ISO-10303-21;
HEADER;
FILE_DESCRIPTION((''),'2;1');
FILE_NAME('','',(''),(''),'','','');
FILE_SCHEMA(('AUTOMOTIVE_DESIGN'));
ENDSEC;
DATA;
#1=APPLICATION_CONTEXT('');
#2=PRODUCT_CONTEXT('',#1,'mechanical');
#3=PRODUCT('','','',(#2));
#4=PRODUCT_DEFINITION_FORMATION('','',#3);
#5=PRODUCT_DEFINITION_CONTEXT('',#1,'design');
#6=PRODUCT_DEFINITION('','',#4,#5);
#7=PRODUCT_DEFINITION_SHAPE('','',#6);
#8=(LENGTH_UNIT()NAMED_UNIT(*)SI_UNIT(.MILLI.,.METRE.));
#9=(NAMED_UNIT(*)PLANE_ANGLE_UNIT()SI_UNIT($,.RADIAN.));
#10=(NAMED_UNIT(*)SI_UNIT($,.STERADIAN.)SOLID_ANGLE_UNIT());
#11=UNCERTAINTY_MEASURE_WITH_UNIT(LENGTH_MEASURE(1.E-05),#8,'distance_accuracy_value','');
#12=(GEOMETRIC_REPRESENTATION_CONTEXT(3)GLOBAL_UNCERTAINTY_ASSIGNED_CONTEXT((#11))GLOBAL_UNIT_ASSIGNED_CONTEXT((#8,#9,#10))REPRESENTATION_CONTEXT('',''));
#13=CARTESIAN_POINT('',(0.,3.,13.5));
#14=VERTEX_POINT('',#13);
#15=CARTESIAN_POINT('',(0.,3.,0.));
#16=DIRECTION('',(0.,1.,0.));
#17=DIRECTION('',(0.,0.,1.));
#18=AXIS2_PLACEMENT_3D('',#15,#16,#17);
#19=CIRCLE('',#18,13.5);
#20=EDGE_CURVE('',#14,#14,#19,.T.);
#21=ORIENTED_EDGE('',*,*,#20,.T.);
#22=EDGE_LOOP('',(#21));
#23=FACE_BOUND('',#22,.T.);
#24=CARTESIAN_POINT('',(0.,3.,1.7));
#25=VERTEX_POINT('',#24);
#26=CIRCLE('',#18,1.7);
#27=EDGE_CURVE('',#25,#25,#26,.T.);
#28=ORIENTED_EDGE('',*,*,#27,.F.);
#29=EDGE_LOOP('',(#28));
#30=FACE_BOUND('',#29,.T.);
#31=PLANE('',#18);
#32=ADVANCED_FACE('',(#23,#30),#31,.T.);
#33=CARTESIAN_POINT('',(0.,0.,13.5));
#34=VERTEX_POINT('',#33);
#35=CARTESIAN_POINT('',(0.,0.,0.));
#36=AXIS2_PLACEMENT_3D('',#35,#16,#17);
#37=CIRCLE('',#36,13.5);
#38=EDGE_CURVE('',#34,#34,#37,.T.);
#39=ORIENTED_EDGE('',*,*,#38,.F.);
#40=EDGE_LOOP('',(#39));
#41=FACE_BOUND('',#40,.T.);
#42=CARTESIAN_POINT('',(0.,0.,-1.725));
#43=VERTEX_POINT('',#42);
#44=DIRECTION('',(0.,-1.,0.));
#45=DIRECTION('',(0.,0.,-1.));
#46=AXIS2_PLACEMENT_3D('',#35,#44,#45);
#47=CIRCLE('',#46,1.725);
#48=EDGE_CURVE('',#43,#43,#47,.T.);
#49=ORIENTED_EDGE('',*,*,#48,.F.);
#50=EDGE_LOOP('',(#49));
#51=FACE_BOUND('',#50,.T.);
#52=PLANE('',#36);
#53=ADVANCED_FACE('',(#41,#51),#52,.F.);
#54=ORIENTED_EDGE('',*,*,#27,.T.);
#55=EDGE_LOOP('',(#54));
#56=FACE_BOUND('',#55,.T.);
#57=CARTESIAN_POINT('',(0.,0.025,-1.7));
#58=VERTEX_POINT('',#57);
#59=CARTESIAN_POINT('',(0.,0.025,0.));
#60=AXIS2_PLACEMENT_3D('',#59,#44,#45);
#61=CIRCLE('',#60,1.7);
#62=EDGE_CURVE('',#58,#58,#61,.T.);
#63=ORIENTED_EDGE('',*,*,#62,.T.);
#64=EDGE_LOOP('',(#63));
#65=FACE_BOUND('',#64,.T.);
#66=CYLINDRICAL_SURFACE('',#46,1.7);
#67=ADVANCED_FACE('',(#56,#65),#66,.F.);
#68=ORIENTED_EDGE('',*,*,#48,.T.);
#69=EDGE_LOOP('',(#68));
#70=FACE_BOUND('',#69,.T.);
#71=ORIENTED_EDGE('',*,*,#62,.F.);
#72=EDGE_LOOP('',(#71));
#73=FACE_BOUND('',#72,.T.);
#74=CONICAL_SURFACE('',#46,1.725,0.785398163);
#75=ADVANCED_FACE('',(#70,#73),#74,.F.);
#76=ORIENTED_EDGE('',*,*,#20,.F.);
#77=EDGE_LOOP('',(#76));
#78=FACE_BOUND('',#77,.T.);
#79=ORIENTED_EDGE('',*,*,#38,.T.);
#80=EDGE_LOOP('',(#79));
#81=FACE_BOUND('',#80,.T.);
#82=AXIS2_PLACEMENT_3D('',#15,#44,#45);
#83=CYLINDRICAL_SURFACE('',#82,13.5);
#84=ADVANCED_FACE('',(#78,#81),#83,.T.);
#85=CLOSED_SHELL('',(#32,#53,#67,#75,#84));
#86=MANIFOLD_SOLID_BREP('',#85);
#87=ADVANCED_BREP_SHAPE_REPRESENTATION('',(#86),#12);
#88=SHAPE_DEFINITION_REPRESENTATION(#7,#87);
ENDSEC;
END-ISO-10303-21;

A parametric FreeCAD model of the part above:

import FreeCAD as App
import Part
import Sketcher
from FreeCAD import Vector

doc = App.newDocument("Part")
body = doc.addObject("PartDesign::Body", "Body")

# Sketch on XZ plane
sketch1 = body.newObject("Sketcher::SketchObject", "Sketch")
sketch1.AttachmentSupport = (doc.getObject("XZ_Plane"), [""])
sketch1.MapMode = "FlatFace"
sketch1.addGeometry(Part.Circle(Vector(0, 0, 0), Vector(0, 0, 1), 13.5), False)
sketch1.addConstraint([
    Sketcher.Constraint("Coincident", 0, 3, -1, 1),
    Sketcher.Constraint("Diameter", 0, 27.0),
])
pad1 = body.newObject("PartDesign::Pad", "Pad")
pad1.Profile = sketch1
pad1.Length = 3
pad1.Reversed = True

# Sketch on XZ plane
sketch2 = body.newObject("Sketcher::SketchObject", "Sketch001")
sketch2.AttachmentSupport = (doc.getObject("XZ_Plane"), [""])
sketch2.MapMode = "FlatFace"
sketch2.addGeometry(Part.Circle(Vector(0, 0, 0), Vector(0, 0, 1), 1.7), False)
sketch2.addConstraint([
    Sketcher.Constraint("Coincident", 0, 3, -1, 1),
    Sketcher.Constraint("Diameter", 0, 3.4),
])
doc.recompute()
hole = body.newObject("PartDesign::Hole", "Hole")
hole.Profile = sketch2
hole.ThreadType = "None"
hole.Diameter = 3.4
hole.DepthType = "ThroughAll"
hole.HoleCutType = "Countersink"
hole.HoleCutDiameter = 3.45
hole.HoleCutCountersinkAngle = 90

doc.recompute()
